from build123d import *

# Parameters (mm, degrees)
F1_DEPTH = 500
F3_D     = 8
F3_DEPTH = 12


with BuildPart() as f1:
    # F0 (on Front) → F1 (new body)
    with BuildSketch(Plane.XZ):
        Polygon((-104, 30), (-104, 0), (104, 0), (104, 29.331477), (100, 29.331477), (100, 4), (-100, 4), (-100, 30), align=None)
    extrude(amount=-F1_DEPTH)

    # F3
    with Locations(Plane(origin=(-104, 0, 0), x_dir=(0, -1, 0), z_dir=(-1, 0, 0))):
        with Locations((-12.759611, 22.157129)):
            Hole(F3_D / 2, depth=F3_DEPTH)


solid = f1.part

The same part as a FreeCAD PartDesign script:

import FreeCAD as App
import Part
import Sketcher
from FreeCAD import Vector

doc = App.newDocument("Part")
body = doc.addObject("PartDesign::Body", "Body")

sketch1 = body.newObject("Sketcher::SketchObject", "Sketch")
sketch1.AttachmentSupport = (doc.getObject("XZ_Plane"), [""])
sketch1.MapMode = "FlatFace"
sketch1.addGeometry(Part.LineSegment(Vector(-104, 30, 0), Vector(-104, 0, 0)), False)
sketch1.addGeometry(Part.LineSegment(Vector(-104, 0, 0), Vector(104, 0, 0)), False)
sketch1.addGeometry(Part.LineSegment(Vector(104, 0, 0), Vector(104, 29.3, 0)), False)
sketch1.addGeometry(Part.LineSegment(Vector(104, 29.3, 0), Vector(100, 29.3, 0)), False)
sketch1.addGeometry(Part.LineSegment(Vector(100, 29.3, 0), Vector(100, 4, 0)), False)
sketch1.addGeometry(Part.LineSegment(Vector(100, 4, 0), Vector(-100, 4, 0)), False)
sketch1.addGeometry(Part.LineSegment(Vector(-100, 4, 0), Vector(-100, 30, 0)), False)
sketch1.addGeometry(Part.LineSegment(Vector(-100, 30, 0), Vector(-104, 30, 0)), False)
sketch1.addConstraint(Sketcher.Constraint("Coincident", 0, 2, 1, 1))
sketch1.addConstraint(Sketcher.Constraint("Coincident", 1, 2, 2, 1))
sketch1.addConstraint(Sketcher.Constraint("Coincident", 2, 2, 3, 1))
sketch1.addConstraint(Sketcher.Constraint("Coincident", 3, 2, 4, 1))
sketch1.addConstraint(Sketcher.Constraint("Coincident", 4, 2, 5, 1))
sketch1.addConstraint(Sketcher.Constraint("Coincident", 5, 2, 6, 1))
sketch1.addConstraint(Sketcher.Constraint("Coincident", 6, 2, 7, 1))
sketch1.addConstraint(Sketcher.Constraint("Coincident", 7, 2, 0, 1))
sketch1.addConstraint(Sketcher.Constraint("Vertical", 0))
sketch1.addConstraint(Sketcher.Constraint("Horizontal", 1))
sketch1.addConstraint(Sketcher.Constraint("Vertical", 2))
sketch1.addConstraint(Sketcher.Constraint("Horizontal", 3))
sketch1.addConstraint(Sketcher.Constraint("Vertical", 4))
sketch1.addConstraint(Sketcher.Constraint("Horizontal", 5))
sketch1.addConstraint(Sketcher.Constraint("Vertical", 6))
sketch1.addConstraint(Sketcher.Constraint("Horizontal", 7))
sketch1.addConstraint(Sketcher.Constraint("Symmetric", 0, 2, 1, 2, -1, 1))
sketch1.addConstraint(Sketcher.Constraint("Equal", 3, 7))
sketch1.addConstraint(Sketcher.Constraint("DistanceX", 1, 1, 1, 2, 208.0))
sketch1.addConstraint(Sketcher.Constraint("DistanceX", 3, 2, 3, 1, 4.0))
sketch1.addConstraint(Sketcher.Constraint("DistanceY", 0, 2, 0, 1, 30.0))
sketch1.addConstraint(Sketcher.Constraint("DistanceY", 6, 1, 6, 2, 26.0))
sketch1.addConstraint(Sketcher.Constraint("DistanceY", 2, 1, 2, 2, 29.331477))
pad1 = body.newObject("PartDesign::Pad", "Pad")
pad1.Profile = sketch1
pad1.Length = 500
pad1.Reversed = True

sketch2 = body.newObject("Sketcher::SketchObject", "Sketch001")
sketch2.AttachmentSupport = (doc.getObject("YZ_Plane"), [""])
sketch2.MapMode = "FlatFace"
sketch2.AttachmentOffset = App.Placement(Vector(0, 0, -104), App.Rotation())
sketch2.addGeometry(Part.Circle(Vector(12.8, 22.2, 0), Vector(0, 0, 1), 4), False)
sketch2.addConstraint(Sketcher.Constraint("Diameter", 0, 8.0))
sketch2.addConstraint(Sketcher.Constraint("DistanceX", -1, 1, 0, 3, 12.759611))
sketch2.addConstraint(Sketcher.Constraint("DistanceY", -1, 1, 0, 3, 22.157129))
doc.recompute()
hole = body.newObject("PartDesign::Hole", "Hole")
hole.Profile = sketch2
hole.ThreadType = "None"
hole.Diameter = 8
hole.DepthType = "Dimension"
hole.Depth = 12
hole.DrillPoint = "Flat"
hole.Reversed = True

doc.recompute()
